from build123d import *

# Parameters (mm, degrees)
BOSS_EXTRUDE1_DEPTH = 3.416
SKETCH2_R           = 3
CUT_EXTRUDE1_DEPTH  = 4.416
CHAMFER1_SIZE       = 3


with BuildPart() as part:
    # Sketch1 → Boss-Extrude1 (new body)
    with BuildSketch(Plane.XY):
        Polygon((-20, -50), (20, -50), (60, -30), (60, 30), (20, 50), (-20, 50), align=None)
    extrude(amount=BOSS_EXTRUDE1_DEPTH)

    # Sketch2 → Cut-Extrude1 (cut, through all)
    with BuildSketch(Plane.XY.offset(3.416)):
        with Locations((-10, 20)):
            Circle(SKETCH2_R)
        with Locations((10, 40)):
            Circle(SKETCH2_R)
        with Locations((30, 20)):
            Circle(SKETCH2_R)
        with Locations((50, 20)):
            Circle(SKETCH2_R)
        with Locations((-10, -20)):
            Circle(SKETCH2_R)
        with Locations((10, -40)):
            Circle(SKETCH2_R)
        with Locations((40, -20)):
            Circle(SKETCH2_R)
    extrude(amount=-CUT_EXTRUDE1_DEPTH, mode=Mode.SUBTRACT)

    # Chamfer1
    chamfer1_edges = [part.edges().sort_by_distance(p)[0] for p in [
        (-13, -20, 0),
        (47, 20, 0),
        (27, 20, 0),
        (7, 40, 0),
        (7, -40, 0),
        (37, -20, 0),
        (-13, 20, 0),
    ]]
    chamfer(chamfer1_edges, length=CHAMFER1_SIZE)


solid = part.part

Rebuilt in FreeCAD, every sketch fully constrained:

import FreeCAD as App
import Part
import Sketcher
Q = App.Units.Quantity


def edges_at(feature, points):
    """Names of the edges that pass closest to the given points."""
    edges = feature.Shape.Edges
    near = lambda p: min(range(len(edges)), key=lambda i: edges[i].distToShape(Part.Vertex(*p))[0])
    return sorted({f"Edge{near(p) + 1}" for p in points})

doc = App.newDocument("Part")
body = doc.addObject("PartDesign::Body", "Body")

# Sketch on XY plane
sketch1 = body.newObject("Sketcher::SketchObject", "Sketch")
sketch1.AttachmentSupport = (doc.getObject("XY_Plane"), [""])
sketch1.MapMode = "FlatFace"
sketch1.addGeometry([
    Part.LineSegment(App.Vector(-20, -50, 0), App.Vector(20, -50, 0)),  # 0
    Part.LineSegment(App.Vector(20, -50, 0), App.Vector(60, -30, 0)),  # 1
    Part.LineSegment(App.Vector(60, -30, 0), App.Vector(60, 30, 0)),  # 2
    Part.LineSegment(App.Vector(60, 30, 0), App.Vector(20, 50, 0)),  # 3
    Part.LineSegment(App.Vector(20, 50, 0), App.Vector(-20, 50, 0)),  # 4
    Part.LineSegment(App.Vector(-20, 50, 0), App.Vector(-20, -50, 0)),  # 5
], False)
sketch1.addConstraint([
    Sketcher.Constraint("Coincident", 0, 2, 1, 1),
    Sketcher.Constraint("Coincident", 1, 2, 2, 1),
    Sketcher.Constraint("Coincident", 2, 2, 3, 1),
    Sketcher.Constraint("Coincident", 3, 2, 4, 1),
    Sketcher.Constraint("Coincident", 4, 2, 5, 1),
    Sketcher.Constraint("Coincident", 5, 2, 0, 1),
    Sketcher.Constraint("Horizontal", 0),
    Sketcher.Constraint("Vertical", 2),
    Sketcher.Constraint("Horizontal", 4),
    Sketcher.Constraint("Vertical", 5),
    Sketcher.Constraint("Symmetric", 0, 2, 4, 2, -1, 1),
    Sketcher.Constraint("Vertical", 0, 2, 3, 2),
    Sketcher.Constraint("Equal", 1, 3),
    Sketcher.Constraint("DistanceX", 0, 1, 0, 2, Q("40 mm")),
    Sketcher.Constraint("DistanceY", 2, 1, 2, 2, Q("60 mm")),
    Sketcher.Constraint("DistanceY", 5, 2, 5, 1, Q("100 mm")),
    Sketcher.Constraint("DistanceX", -1, 1, 1, 2, Q("60 mm")),
])
pad1 = body.newObject("PartDesign::Pad", "Pad")
pad1.Profile = sketch1
pad1.Length = 3.416

# Sketch on XY plane
sketch2 = body.newObject("Sketcher::SketchObject", "Sketch001")
sketch2.AttachmentSupport = (doc.getObject("XY_Plane"), [""])
sketch2.MapMode = "FlatFace"
sketch2.AttachmentOffset = App.Placement(App.Vector(0, 0, 3.416), App.Rotation())
sketch2.addGeometry([
    Part.Circle(App.Vector(-10, 20, 0), App.Vector(0, 0, 1), 3),  # 0
    Part.Circle(App.Vector(10, 40, 0), App.Vector(0, 0, 1), 3),  # 1
    Part.Circle(App.Vector(30, 20, 0), App.Vector(0, 0, 1), 3),  # 2
    Part.Circle(App.Vector(50, 20, 0), App.Vector(0, 0, 1), 3),  # 3
    Part.Circle(App.Vector(-10, -20, 0), App.Vector(0, 0, 1), 3),  # 4
    Part.Circle(App.Vector(10, -40, 0), App.Vector(0, 0, 1), 3),  # 5
    Part.Circle(App.Vector(40, -20, 0), App.Vector(0, 0, 1), 3),  # 6
], False)
sketch2.addConstraint([
    Sketcher.Constraint("Equal", 0, 1),
    Sketcher.Constraint("Equal", 1, 2),
    Sketcher.Constraint("Equal", 2, 3),
    Sketcher.Constraint("Equal", 3, 4),
    Sketcher.Constraint("Equal", 4, 5),
    Sketcher.Constraint("Equal", 5, 6),
    Sketcher.Constraint("Symmetric", 0, 3, 4, 3, -1),
    Sketcher.Constraint("Symmetric", 1, 3, 5, 3, -1),
    Sketcher.Constraint("Horizontal", 0, 3, 2, 3),
    Sketcher.Constraint("Horizontal", 2, 3, 3, 3),
    Sketcher.Constraint("Horizontal", 4, 3, 6, 3),
    Sketcher.Constraint("Diameter", 0, Q("6 mm")),
    Sketcher.Constraint("DistanceX", 0, 3, -1, 1, Q("10 mm")),
    Sketcher.Constraint("DistanceY", -1, 1, 0, 3, Q("20 mm")),
    Sketcher.Constraint("DistanceX", -1, 1, 1, 3, Q("10 mm")),
    Sketcher.Constraint("DistanceY", -1, 1, 1, 3, Q("40 mm")),
    Sketcher.Constraint("DistanceX", -1, 1, 2, 3, Q("30 mm")),
    Sketcher.Constraint("DistanceX", -1, 1, 3, 3, Q("50 mm")),
    Sketcher.Constraint("DistanceX", -1, 1, 6, 3, Q("40 mm")),
])
pocket1 = body.newObject("PartDesign::Pocket", "Pocket")
pocket1.Profile = sketch2
pocket1.Type = "ThroughAll"
doc.recompute()

chamfer = body.newObject("PartDesign::Chamfer", "Chamfer")
chamfer.Base = (pocket1, edges_at(pocket1, [
    (-13, -20, 0),
    (47, 20, 0),
    (27, 20, 0),
    (7, 40, 0),
    (7, -40, 0),
    (37, -20, 0),
    (-13, 20, 0),
]))
chamfer.Size = 3

doc.recompute()
